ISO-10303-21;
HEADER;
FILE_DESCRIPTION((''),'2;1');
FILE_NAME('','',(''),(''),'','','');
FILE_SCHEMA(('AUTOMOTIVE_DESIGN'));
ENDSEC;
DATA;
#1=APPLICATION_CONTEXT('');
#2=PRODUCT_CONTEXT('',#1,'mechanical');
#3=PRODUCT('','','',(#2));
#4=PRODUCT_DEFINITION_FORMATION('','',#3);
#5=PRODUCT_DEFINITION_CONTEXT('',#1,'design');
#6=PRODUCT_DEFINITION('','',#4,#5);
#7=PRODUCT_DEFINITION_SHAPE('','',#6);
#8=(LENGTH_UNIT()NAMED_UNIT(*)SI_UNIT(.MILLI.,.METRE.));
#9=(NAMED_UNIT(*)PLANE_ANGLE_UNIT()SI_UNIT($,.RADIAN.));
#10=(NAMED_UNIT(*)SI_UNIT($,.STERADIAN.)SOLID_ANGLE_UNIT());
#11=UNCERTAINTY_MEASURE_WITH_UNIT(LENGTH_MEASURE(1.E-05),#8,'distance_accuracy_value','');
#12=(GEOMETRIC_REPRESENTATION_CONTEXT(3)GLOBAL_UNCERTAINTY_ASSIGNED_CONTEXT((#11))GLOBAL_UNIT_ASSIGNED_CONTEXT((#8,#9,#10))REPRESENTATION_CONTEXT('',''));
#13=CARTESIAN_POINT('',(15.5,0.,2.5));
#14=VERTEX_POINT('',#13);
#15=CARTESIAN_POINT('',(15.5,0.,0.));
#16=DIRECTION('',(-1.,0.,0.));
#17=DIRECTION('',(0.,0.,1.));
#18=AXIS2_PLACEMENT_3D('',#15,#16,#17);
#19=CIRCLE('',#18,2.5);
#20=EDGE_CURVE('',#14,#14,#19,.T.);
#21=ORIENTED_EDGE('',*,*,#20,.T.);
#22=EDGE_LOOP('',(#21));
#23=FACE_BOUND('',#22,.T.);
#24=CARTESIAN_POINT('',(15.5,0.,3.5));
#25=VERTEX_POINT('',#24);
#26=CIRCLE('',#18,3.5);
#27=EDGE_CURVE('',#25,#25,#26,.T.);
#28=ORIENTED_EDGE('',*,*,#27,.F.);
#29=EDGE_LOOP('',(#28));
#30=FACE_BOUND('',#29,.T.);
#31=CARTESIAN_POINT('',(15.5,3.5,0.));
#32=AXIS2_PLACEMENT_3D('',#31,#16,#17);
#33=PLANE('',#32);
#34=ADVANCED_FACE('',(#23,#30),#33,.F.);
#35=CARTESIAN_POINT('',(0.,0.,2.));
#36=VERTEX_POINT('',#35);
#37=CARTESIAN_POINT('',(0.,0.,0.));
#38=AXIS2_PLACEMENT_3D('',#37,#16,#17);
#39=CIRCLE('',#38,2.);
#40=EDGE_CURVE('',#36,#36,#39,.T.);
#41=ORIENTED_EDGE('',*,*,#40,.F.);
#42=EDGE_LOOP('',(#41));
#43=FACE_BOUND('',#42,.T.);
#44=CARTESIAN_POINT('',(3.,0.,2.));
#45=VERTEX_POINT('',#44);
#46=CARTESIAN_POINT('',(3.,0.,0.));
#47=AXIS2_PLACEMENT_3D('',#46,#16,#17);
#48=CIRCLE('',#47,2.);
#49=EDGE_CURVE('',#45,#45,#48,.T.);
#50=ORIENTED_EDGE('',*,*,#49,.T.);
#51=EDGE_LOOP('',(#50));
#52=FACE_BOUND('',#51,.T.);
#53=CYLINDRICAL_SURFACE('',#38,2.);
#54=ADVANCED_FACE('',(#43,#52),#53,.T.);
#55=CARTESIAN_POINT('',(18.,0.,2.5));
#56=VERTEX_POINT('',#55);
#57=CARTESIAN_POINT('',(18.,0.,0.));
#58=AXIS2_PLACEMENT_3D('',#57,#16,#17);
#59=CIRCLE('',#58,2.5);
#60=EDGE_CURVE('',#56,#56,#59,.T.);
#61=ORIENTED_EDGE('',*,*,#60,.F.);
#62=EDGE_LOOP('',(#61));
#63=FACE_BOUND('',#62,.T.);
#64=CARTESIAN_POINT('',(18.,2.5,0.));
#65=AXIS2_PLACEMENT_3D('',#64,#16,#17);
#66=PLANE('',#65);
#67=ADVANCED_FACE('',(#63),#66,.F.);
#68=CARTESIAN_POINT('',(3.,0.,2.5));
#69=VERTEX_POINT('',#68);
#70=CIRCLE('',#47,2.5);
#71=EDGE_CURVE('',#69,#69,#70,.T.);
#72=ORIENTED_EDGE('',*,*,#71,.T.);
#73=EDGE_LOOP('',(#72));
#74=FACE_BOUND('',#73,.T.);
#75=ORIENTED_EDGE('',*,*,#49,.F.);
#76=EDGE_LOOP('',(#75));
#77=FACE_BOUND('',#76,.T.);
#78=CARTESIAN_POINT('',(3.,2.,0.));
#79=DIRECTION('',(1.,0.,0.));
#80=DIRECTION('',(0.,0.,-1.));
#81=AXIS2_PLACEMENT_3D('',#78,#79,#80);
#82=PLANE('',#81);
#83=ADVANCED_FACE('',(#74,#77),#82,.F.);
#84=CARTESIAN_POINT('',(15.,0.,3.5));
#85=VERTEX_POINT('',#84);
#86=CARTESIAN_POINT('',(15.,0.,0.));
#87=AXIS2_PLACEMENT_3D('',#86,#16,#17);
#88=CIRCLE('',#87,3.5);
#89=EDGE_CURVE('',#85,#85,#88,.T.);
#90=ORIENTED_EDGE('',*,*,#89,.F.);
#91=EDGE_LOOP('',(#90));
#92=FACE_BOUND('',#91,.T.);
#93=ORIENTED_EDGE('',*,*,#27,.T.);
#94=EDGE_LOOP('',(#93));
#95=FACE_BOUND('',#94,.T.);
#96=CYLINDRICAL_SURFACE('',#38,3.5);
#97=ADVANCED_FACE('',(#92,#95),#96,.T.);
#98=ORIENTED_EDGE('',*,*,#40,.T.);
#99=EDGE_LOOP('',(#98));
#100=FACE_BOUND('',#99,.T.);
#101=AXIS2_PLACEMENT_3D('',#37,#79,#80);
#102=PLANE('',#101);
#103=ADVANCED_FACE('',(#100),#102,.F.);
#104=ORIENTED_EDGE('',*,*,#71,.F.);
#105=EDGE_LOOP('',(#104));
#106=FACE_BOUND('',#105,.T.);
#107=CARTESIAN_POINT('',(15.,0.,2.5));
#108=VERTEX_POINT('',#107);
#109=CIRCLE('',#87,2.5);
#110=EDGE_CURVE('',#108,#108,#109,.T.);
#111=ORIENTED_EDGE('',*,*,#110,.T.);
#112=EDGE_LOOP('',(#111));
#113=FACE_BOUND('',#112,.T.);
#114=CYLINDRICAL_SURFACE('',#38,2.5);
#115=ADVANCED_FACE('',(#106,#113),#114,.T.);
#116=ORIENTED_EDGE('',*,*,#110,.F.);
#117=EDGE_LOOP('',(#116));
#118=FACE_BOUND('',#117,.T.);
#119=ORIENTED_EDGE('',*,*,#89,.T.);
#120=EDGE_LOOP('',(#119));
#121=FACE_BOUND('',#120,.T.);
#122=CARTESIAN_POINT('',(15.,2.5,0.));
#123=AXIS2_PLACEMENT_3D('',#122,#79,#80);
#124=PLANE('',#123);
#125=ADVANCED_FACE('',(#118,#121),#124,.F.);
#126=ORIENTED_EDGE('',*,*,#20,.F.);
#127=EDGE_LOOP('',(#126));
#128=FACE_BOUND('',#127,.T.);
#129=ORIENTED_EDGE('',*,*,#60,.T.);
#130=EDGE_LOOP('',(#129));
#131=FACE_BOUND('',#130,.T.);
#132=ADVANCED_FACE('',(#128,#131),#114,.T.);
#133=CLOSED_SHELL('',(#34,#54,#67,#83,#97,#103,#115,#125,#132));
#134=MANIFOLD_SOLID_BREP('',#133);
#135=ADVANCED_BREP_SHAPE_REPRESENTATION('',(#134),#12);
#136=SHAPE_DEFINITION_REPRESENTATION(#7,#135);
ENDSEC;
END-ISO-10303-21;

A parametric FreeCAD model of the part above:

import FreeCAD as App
import Part
import Sketcher

V = App.Vector
Q = App.Units.Quantity


def add_polygon(sketch, points):
    """Adds a closed chain of lines whose ends are joined by coincident constraints."""
    first, n = sketch.GeometryCount, len(points)
    for a, b in zip(points, points[1:] + points[:1]):
        sketch.addGeometry(Part.LineSegment(App.Vector(*a, 0), App.Vector(*b, 0)), False)
    for i in range(n):
        sketch.addConstraint(Sketcher.Constraint("Coincident", first + i, 2, first + (i + 1) % n, 1))

doc = App.newDocument("Part")
params = doc.addObject("Spreadsheet::Sheet", "Params")
for row, (alias, value) in enumerate([
    ("sketch1_width", "18 mm"),
    ("sketch1_width2", "12 mm"),
    ("sketch1_width3", "3 mm"),
    ("sketch1_height", "2 mm"),
    ("sketch1_height2", "1 mm"),
    ("revolution_angle", "360 deg"),
], start=1):
    params.set(f"A{row}", alias)
    params.set(f"B{row}", "=" + value)
    params.setAlias(f"B{row}", alias)

body = doc.addObject("PartDesign::Body", "Body")

# Sketch on XY plane
sketch1 = doc.addObject("Sketcher::SketchObject", "Sketch")
body.addObject(sketch1)
sketch1.AttachmentSupport = (doc.XY_Plane, [""])
sketch1.MapMode = "FlatFace"
add_polygon(sketch1, [(0, 2), (0, 0), (18, 0), (18, 2.5), (15.5, 2.5), (15.5, 3.5), (15, 3.5), (15, 2.5), (3, 2.5), (3, 2)])  # lines 0-9
sketch1.addConstraint([
    Sketcher.Constraint("Vertical", 0),
    Sketcher.Constraint("Horizontal", 1),
    Sketcher.Constraint("Vertical", 2),
    Sketcher.Constraint("Horizontal", 3),
    Sketcher.Constraint("Vertical", 4),
    Sketcher.Constraint("Horizontal", 5),
    Sketcher.Constraint("Vertical", 6),
    Sketcher.Constraint("Horizontal", 7),
    Sketcher.Constraint("Vertical", 8),
    Sketcher.Constraint("Horizontal", 9),
    Sketcher.Constraint("Coincident", 0, 2, -1, 1),
    Sketcher.Constraint("Horizontal", 3, 2, 6, 2),
    Sketcher.Constraint("Equal", 3, 2),
    Sketcher.Constraint("Equal", 5, 8),
    Sketcher.Constraint("DistanceX", 1, 1, 1, 2, Q("18 mm")),
    Sketcher.Constraint("DistanceX", 7, 2, 7, 1, Q("12 mm")),
    Sketcher.Constraint("DistanceX", 9, 2, 9, 1, Q("3 mm")),
    Sketcher.Constraint("DistanceY", 0, 2, 0, 1, Q("2 mm")),
    Sketcher.Constraint("DistanceY", 4, 1, 4, 2, Q("1 mm")),
])
sketch1.setExpression("Constraints[24]", "Params.sketch1_width")
sketch1.setExpression("Constraints[25]", "Params.sketch1_width2")
sketch1.setExpression("Constraints[26]", "Params.sketch1_width3")
sketch1.setExpression("Constraints[27]", "Params.sketch1_height")
sketch1.setExpression("Constraints[28]", "Params.sketch1_height2")
revolution = doc.addObject("PartDesign::Revolution", "Revolution")
body.addObject(revolution)
revolution.Profile = sketch1
revolution.ReferenceAxis = (sketch1, ["H_Axis"])
revolution.setExpression("Angle", "Params.revolution_angle")

doc.recompute()
